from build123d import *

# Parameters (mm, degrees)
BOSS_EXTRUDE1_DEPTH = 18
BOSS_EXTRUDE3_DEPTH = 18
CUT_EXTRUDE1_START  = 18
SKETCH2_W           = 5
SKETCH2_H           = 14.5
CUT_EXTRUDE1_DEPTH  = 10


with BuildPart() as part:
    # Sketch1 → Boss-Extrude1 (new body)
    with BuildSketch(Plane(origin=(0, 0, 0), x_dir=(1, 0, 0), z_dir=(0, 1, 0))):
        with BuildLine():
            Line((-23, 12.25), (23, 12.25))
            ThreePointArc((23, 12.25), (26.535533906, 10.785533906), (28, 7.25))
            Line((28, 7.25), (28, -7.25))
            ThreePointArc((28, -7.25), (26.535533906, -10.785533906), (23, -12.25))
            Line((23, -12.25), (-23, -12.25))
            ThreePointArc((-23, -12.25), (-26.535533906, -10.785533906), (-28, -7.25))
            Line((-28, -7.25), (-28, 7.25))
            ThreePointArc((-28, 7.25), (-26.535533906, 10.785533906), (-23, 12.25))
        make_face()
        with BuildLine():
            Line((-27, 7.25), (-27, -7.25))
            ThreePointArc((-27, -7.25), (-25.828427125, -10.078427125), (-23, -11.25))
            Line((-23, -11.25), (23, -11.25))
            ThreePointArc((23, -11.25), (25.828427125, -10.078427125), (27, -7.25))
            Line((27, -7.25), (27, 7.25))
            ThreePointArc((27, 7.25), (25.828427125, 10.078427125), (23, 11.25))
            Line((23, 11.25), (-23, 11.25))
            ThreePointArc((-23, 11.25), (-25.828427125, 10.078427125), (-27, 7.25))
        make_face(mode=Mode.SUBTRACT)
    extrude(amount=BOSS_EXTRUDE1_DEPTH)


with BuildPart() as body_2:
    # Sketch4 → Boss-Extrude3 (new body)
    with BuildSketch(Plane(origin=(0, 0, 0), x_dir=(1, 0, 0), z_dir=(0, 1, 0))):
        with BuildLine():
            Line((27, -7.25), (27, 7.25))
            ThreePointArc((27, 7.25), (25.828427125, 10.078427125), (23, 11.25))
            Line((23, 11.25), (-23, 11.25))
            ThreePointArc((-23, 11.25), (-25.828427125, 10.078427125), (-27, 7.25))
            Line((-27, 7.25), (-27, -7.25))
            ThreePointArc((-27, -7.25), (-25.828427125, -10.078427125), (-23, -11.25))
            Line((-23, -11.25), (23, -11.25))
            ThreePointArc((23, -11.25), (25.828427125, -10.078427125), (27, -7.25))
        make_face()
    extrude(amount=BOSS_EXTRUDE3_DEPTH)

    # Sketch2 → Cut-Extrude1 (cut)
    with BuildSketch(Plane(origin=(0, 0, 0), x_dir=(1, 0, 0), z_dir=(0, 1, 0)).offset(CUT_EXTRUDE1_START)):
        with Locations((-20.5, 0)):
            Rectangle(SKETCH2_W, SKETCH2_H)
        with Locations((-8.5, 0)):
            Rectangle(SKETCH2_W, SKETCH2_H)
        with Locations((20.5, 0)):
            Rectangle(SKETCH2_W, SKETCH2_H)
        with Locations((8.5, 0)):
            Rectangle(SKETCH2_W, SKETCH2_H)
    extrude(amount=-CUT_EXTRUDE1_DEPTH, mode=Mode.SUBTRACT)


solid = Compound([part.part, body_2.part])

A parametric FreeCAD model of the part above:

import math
import FreeCAD as App
import Part
import Sketcher
Q = App.Units.Quantity

doc = App.newDocument("Part")
body = doc.addObject("PartDesign::Body", "Body")

sketch1 = body.newObject("Sketcher::SketchObject", "Sketch")
sketch1.AttachmentSupport = (doc.getObject("XZ_Plane"), [""])
sketch1.MapMode = "FlatFace"
sketch1.addGeometry(Part.LineSegment(App.Vector(23, -12.25, 0), App.Vector(-23, -12.25, 0)), False)
sketch1.addGeometry(Part.ArcOfCircle(Part.Circle(App.Vector(-23, -7.25, 0), App.Vector(0, 0, 1), 5), math.radians(180), math.radians(270)), False)
sketch1.addGeometry(Part.LineSegment(App.Vector(-28, -7.25, 0), App.Vector(-28, 7.25, 0)), False)
sketch1.addGeometry(Part.ArcOfCircle(Part.Circle(App.Vector(-23, 7.25, 0), App.Vector(0, 0, 1), 5), math.radians(90), math.radians(180)), False)
sketch1.addGeometry(Part.LineSegment(App.Vector(-23, 12.25, 0), App.Vector(23, 12.25, 0)), False)
sketch1.addGeometry(Part.ArcOfCircle(Part.Circle(App.Vector(23, 7.25, 0), App.Vector(0, 0, 1), 5), math.radians(0), math.radians(90)), False)
sketch1.addGeometry(Part.LineSegment(App.Vector(28, 7.25, 0), App.Vector(28, -7.25, 0)), False)
sketch1.addGeometry(Part.ArcOfCircle(Part.Circle(App.Vector(23, -7.25, 0), App.Vector(0, 0, 1), 5), math.radians(-90), math.radians(0)), False)
sketch1.addGeometry(Part.ArcOfCircle(Part.Circle(App.Vector(-23, -7.25, 0), App.Vector(0, 0, 1), 4), math.radians(180), math.radians(270)), False)
sketch1.addGeometry(Part.LineSegment(App.Vector(-23, -11.25, 0), App.Vector(23, -11.25, 0)), False)
sketch1.addGeometry(Part.ArcOfCircle(Part.Circle(App.Vector(23, -7.25, 0), App.Vector(0, 0, 1), 4), math.radians(-90), math.radians(0)), False)
sketch1.addGeometry(Part.LineSegment(App.Vector(27, -7.25, 0), App.Vector(27, 7.25, 0)), False)
sketch1.addGeometry(Part.ArcOfCircle(Part.Circle(App.Vector(23, 7.25, 0), App.Vector(0, 0, 1), 4), math.radians(0), math.radians(90)), False)
sketch1.addGeometry(Part.LineSegment(App.Vector(23, 11.25, 0), App.Vector(-23, 11.25, 0)), False)
sketch1.addGeometry(Part.ArcOfCircle(Part.Circle(App.Vector(-23, 7.25, 0), App.Vector(0, 0, 1), 4), math.radians(90), math.radians(180)), False)
sketch1.addGeometry(Part.LineSegment(App.Vector(-27, 7.25, 0), App.Vector(-27, -7.25, 0)), False)
sketch1.addConstraint(Sketcher.Constraint("Tangent", 0, 2, 1, 2))
sketch1.addConstraint(Sketcher.Constraint("Tangent", 1, 1, 2, 1))
sketch1.addConstraint(Sketcher.Constraint("Tangent", 2, 2, 3, 2))
sketch1.addConstraint(Sketcher.Constraint("Tangent", 3, 1, 4, 1))
sketch1.addConstraint(Sketcher.Constraint("Tangent", 4, 2, 5, 2))
sketch1.addConstraint(Sketcher.Constraint("Tangent", 5, 1, 6, 1))
sketch1.addConstraint(Sketcher.Constraint("Tangent", 6, 2, 7, 2))
sketch1.addConstraint(Sketcher.Constraint("Tangent", 7, 1, 0, 1))
sketch1.addConstraint(Sketcher.Constraint("Tangent", 8, 2, 9, 1))
sketch1.addConstraint(Sketcher.Constraint("Tangent", 9, 2, 10, 1))
sketch1.addConstraint(Sketcher.Constraint("Tangent", 10, 2, 11, 1))
sketch1.addConstraint(Sketcher.Constraint("Tangent", 11, 2, 12, 1))
sketch1.addConstraint(Sketcher.Constraint("Tangent", 12, 2, 13, 1))
sketch1.addConstraint(Sketcher.Constraint("Tangent", 13, 2, 14, 1))
sketch1.addConstraint(Sketcher.Constraint("Tangent", 14, 2, 15, 1))
sketch1.addConstraint(Sketcher.Constraint("Tangent", 15, 2, 8, 1))
sketch1.addConstraint(Sketcher.Constraint("Horizontal", 0))
sketch1.addConstraint(Sketcher.Constraint("Vertical", 2))
sketch1.addConstraint(Sketcher.Constraint("Horizontal", 4))
sketch1.addConstraint(Sketcher.Constraint("Vertical", 6))
sketch1.addConstraint(Sketcher.Constraint("Horizontal", 9))
sketch1.addConstraint(Sketcher.Constraint("Vertical", 11))
sketch1.addConstraint(Sketcher.Constraint("Horizontal", 13))
sketch1.addConstraint(Sketcher.Constraint("Vertical", 15))
sketch1.addConstraint(Sketcher.Constraint("Coincident", 8, 3, 1, 3))
sketch1.addConstraint(Sketcher.Constraint("Coincident", 10, 3, 7, 3))
sketch1.addConstraint(Sketcher.Constraint("Coincident", 12, 3, 5, 3))
sketch1.addConstraint(Sketcher.Constraint("Equal", 1, 3))
sketch1.addConstraint(Sketcher.Constraint("Equal", 3, 5))
sketch1.addConstraint(Sketcher.Constraint("Equal", 5, 7))
sketch1.addConstraint(Sketcher.Constraint("Equal", 12, 14))
sketch1.addConstraint(Sketcher.Constraint("Symmetric", 1, 3, 5, 3, -1, 1))
sketch1.addConstraint(Sketcher.Constraint("Radius", 1, Q("5 mm")))
sketch1.addConstraint(Sketcher.Constraint("Radius", 8, Q("4 mm")))
sketch1.addConstraint(Sketcher.Constraint("DistanceX", 0, 2, 0, 1, Q("46 mm")))
sketch1.addConstraint(Sketcher.Constraint("DistanceY", 2, 1, 2, 2, Q("14.5 mm")))
pad1 = body.newObject("PartDesign::Pad", "Pad")
pad1.Profile = sketch1
pad1.Length = 18
pad1.Reversed = True
body2 = doc.addObject("PartDesign::Body", "Body001")

sketch2 = body2.newObject("Sketcher::SketchObject", "Sketch001")
sketch2.AttachmentSupport = (doc.getObject("XZ_Plane001"), [""])
sketch2.MapMode = "FlatFace"
sketch2.addGeometry(Part.LineSegment(App.Vector(27, 7.25, 0), App.Vector(27, -7.25, 0)), False)
sketch2.addGeometry(Part.ArcOfCircle(Part.Circle(App.Vector(23, -7.25, 0), App.Vector(0, 0, 1), 4), math.radians(-90), math.radians(0)), False)
sketch2.addGeometry(Part.LineSegment(App.Vector(23, -11.25, 0), App.Vector(-23, -11.25, 0)), False)
sketch2.addGeometry(Part.ArcOfCircle(Part.Circle(App.Vector(-23, -7.25, 0), App.Vector(0, 0, 1), 4), math.radians(180), math.radians(270)), False)
sketch2.addGeometry(Part.LineSegment(App.Vector(-27, -7.25, 0), App.Vector(-27, 7.25, 0)), False)
sketch2.addGeometry(Part.ArcOfCircle(Part.Circle(App.Vector(-23, 7.25, 0), App.Vector(0, 0, 1), 4), math.radians(90), math.radians(180)), False)
sketch2.addGeometry(Part.LineSegment(App.Vector(-23, 11.25, 0), App.Vector(23, 11.25, 0)), False)
sketch2.addGeometry(Part.ArcOfCircle(Part.Circle(App.Vector(23, 7.25, 0), App.Vector(0, 0, 1), 4), math.radians(0), math.radians(90)), False)
sketch2.addConstraint(Sketcher.Constraint("Tangent", 0, 2, 1, 2))
sketch2.addConstraint(Sketcher.Constraint("Tangent", 1, 1, 2, 1))
sketch2.addConstraint(Sketcher.Constraint("Tangent", 2, 2, 3, 2))
sketch2.addConstraint(Sketcher.Constraint("Tangent", 3, 1, 4, 1))
sketch2.addConstraint(Sketcher.Constraint("Tangent", 4, 2, 5, 2))
sketch2.addConstraint(Sketcher.Constraint("Tangent", 5, 1, 6, 1))
sketch2.addConstraint(Sketcher.Constraint("Tangent", 6, 2, 7, 2))
sketch2.addConstraint(Sketcher.Constraint("Tangent", 7, 1, 0, 1))
sketch2.addConstraint(Sketcher.Constraint("Vertical", 0))
sketch2.addConstraint(Sketcher.Constraint("Horizontal", 2))
sketch2.addConstraint(Sketcher.Constraint("Vertical", 4))
sketch2.addConstraint(Sketcher.Constraint("Horizontal", 6))
sketch2.addConstraint(Sketcher.Constraint("Equal", 1, 3))
sketch2.addConstraint(Sketcher.Constraint("Equal", 3, 5))
sketch2.addConstraint(Sketcher.Constraint("Equal", 5, 7))
sketch2.addConstraint(Sketcher.Constraint("Symmetric", 1, 3, 5, 3, -1, 1))
sketch2.addConstraint(Sketcher.Constraint("Radius", 1, Q("4 mm")))
sketch2.addConstraint(Sketcher.Constraint("DistanceX", 2, 2, 2, 1, Q("46 mm")))
sketch2.addConstraint(Sketcher.Constraint("DistanceY", 0, 2, 0, 1, Q("14.5 mm")))
pad2 = body2.newObject("PartDesign::Pad", "Pad001")
pad2.Profile = sketch2
pad2.Length = 18
pad2.Reversed = True

sketch3 = body2.newObject("Sketcher::SketchObject", "Sketch002")
sketch3.AttachmentSupport = (doc.getObject("XZ_Plane001"), [""])
sketch3.MapMode = "FlatFace"
sketch3.AttachmentOffset = App.Placement(App.Vector(0, 0, -18), App.Rotation())
sketch3.addGeometry(Part.LineSegment(App.Vector(-23, -7.25, 0), App.Vector(-23, 7.25, 0)), False)
sketch3.addGeometry(Part.LineSegment(App.Vector(-23, 7.25, 0), App.Vector(-18, 7.25, 0)), False)
sketch3.addGeometry(Part.LineSegment(App.Vector(-18, 7.25, 0), App.Vector(-18, -7.25, 0)), False)
sketch3.addGeometry(Part.LineSegment(App.Vector(-18, -7.25, 0), App.Vector(-23, -7.25, 0)), False)
sketch3.addGeometry(Part.LineSegment(App.Vector(-11, -7.25, 0), App.Vector(-11, 7.25, 0)), False)
sketch3.addGeometry(Part.LineSegment(App.Vector(-11, 7.25, 0), App.Vector(-6, 7.25, 0)), False)
sketch3.addGeometry(Part.LineSegment(App.Vector(-6, 7.25, 0), App.Vector(-6, -7.25, 0)), False)
sketch3.addGeometry(Part.LineSegment(App.Vector(-6, -7.25, 0), App.Vector(-11, -7.25, 0)), False)
sketch3.addGeometry(Part.LineSegment(App.Vector(18, -7.25, 0), App.Vector(18, 7.25, 0)), False)
sketch3.addGeometry(Part.LineSegment(App.Vector(18, 7.25, 0), App.Vector(23, 7.25, 0)), False)
sketch3.addGeometry(Part.LineSegment(App.Vector(23, 7.25, 0), App.Vector(23, -7.25, 0)), False)
sketch3.addGeometry(Part.LineSegment(App.Vector(23, -7.25, 0), App.Vector(18, -7.25, 0)), False)
sketch3.addGeometry(Part.LineSegment(App.Vector(6, -7.25, 0), App.Vector(6, 7.25, 0)), False)
sketch3.addGeometry(Part.LineSegment(App.Vector(6, 7.25, 0), App.Vector(11, 7.25, 0)), False)
sketch3.addGeometry(Part.LineSegment(App.Vector(11, 7.25, 0), App.Vector(11, -7.25, 0)), False)
sketch3.addGeometry(Part.LineSegment(App.Vector(11, -7.25, 0), App.Vector(6, -7.25, 0)), False)
sketch3.addConstraint(Sketcher.Constraint("Coincident", 0, 2, 1, 1))
sketch3.addConstraint(Sketcher.Constraint("Coincident", 1, 2, 2, 1))
sketch3.addConstraint(Sketcher.Constraint("Coincident", 2, 2, 3, 1))
sketch3.addConstraint(Sketcher.Constraint("Coincident", 3, 2, 0, 1))
sketch3.addConstraint(Sketcher.Constraint("Coincident", 4, 2, 5, 1))
sketch3.addConstraint(Sketcher.Constraint("Coincident", 5, 2, 6, 1))
sketch3.addConstraint(Sketcher.Constraint("Coincident", 6, 2, 7, 1))
sketch3.addConstraint(Sketcher.Constraint("Coincident", 7, 2, 4, 1))
sketch3.addConstraint(Sketcher.Constraint("Coincident", 8, 2, 9, 1))
sketch3.addConstraint(Sketcher.Constraint("Coincident", 9, 2, 10, 1))
sketch3.addConstraint(Sketcher.Constraint("Coincident", 10, 2, 11, 1))
sketch3.addConstraint(Sketcher.Constraint("Coincident", 11, 2, 8, 1))
sketch3.addConstraint(Sketcher.Constraint("Coincident", 12, 2, 13, 1))
sketch3.addConstraint(Sketcher.Constraint("Coincident", 13, 2, 14, 1))
sketch3.addConstraint(Sketcher.Constraint("Coincident", 14, 2, 15, 1))
sketch3.addConstraint(Sketcher.Constraint("Coincident", 15, 2, 12, 1))
sketch3.addConstraint(Sketcher.Constraint("Vertical", 0))
sketch3.addConstraint(Sketcher.Constraint("Horizontal", 1))
sketch3.addConstraint(Sketcher.Constraint("Vertical", 2))
sketch3.addConstraint(Sketcher.Constraint("Horizontal", 3))
sketch3.addConstraint(Sketcher.Constraint("Vertical", 4))
sketch3.addConstraint(Sketcher.Constraint("Horizontal", 5))
sketch3.addConstraint(Sketcher.Constraint("Vertical", 6))
sketch3.addConstraint(Sketcher.Constraint("Horizontal", 7))
sketch3.addConstraint(Sketcher.Constraint("Vertical", 8))
sketch3.addConstraint(Sketcher.Constraint("Horizontal", 9))
sketch3.addConstraint(Sketcher.Constraint("Vertical", 10))
sketch3.addConstraint(Sketcher.Constraint("Horizontal", 11))
sketch3.addConstraint(Sketcher.Constraint("Vertical", 12))
sketch3.addConstraint(Sketcher.Constraint("Horizontal", 13))
sketch3.addConstraint(Sketcher.Constraint("Vertical", 14))
sketch3.addConstraint(Sketcher.Constraint("Horizontal", 15))
sketch3.addConstraint(Sketcher.Constraint("Symmetric", 2, 2, 8, 2, -1, 1))
sketch3.addConstraint(Sketcher.Constraint("Symmetric", 0, 2, 10, 2, -1, 1))
sketch3.addConstraint(Sketcher.Constraint("Symmetric", 6, 2, 12, 2, -1, 1))
sketch3.addConstraint(Sketcher.Constraint("Symmetric", 4, 2, 14, 2, -1, 1))
sketch3.addConstraint(Sketcher.Constraint("Horizontal", 1, 2, 4, 2))
sketch3.addConstraint(Sketcher.Constraint("Horizontal", 3, 2, 6, 2))
sketch3.addConstraint(Sketcher.Constraint("Horizontal", 5, 2, 8, 2))
sketch3.addConstraint(Sketcher.Constraint("Equal", 3, 5))
sketch3.addConstraint(Sketcher.Constraint("DistanceX", 1, 1, 1, 2, Q("5 mm")))
sketch3.addConstraint(Sketcher.Constraint("DistanceY", 0, 1, 0, 2, Q("14.5 mm")))
sketch3.addConstraint(Sketcher.Constraint("DistanceX", 0, 2, -1, 1, Q("23 mm")))
sketch3.addConstraint(Sketcher.Constraint("DistanceX", 4, 2, -1, 1, Q("11 mm")))
pocket1 = body2.newObject("PartDesign::Pocket", "Pocket")
pocket1.Profile = sketch3
pocket1.Length = 10
pocket1.Reversed = True

doc.recompute()
